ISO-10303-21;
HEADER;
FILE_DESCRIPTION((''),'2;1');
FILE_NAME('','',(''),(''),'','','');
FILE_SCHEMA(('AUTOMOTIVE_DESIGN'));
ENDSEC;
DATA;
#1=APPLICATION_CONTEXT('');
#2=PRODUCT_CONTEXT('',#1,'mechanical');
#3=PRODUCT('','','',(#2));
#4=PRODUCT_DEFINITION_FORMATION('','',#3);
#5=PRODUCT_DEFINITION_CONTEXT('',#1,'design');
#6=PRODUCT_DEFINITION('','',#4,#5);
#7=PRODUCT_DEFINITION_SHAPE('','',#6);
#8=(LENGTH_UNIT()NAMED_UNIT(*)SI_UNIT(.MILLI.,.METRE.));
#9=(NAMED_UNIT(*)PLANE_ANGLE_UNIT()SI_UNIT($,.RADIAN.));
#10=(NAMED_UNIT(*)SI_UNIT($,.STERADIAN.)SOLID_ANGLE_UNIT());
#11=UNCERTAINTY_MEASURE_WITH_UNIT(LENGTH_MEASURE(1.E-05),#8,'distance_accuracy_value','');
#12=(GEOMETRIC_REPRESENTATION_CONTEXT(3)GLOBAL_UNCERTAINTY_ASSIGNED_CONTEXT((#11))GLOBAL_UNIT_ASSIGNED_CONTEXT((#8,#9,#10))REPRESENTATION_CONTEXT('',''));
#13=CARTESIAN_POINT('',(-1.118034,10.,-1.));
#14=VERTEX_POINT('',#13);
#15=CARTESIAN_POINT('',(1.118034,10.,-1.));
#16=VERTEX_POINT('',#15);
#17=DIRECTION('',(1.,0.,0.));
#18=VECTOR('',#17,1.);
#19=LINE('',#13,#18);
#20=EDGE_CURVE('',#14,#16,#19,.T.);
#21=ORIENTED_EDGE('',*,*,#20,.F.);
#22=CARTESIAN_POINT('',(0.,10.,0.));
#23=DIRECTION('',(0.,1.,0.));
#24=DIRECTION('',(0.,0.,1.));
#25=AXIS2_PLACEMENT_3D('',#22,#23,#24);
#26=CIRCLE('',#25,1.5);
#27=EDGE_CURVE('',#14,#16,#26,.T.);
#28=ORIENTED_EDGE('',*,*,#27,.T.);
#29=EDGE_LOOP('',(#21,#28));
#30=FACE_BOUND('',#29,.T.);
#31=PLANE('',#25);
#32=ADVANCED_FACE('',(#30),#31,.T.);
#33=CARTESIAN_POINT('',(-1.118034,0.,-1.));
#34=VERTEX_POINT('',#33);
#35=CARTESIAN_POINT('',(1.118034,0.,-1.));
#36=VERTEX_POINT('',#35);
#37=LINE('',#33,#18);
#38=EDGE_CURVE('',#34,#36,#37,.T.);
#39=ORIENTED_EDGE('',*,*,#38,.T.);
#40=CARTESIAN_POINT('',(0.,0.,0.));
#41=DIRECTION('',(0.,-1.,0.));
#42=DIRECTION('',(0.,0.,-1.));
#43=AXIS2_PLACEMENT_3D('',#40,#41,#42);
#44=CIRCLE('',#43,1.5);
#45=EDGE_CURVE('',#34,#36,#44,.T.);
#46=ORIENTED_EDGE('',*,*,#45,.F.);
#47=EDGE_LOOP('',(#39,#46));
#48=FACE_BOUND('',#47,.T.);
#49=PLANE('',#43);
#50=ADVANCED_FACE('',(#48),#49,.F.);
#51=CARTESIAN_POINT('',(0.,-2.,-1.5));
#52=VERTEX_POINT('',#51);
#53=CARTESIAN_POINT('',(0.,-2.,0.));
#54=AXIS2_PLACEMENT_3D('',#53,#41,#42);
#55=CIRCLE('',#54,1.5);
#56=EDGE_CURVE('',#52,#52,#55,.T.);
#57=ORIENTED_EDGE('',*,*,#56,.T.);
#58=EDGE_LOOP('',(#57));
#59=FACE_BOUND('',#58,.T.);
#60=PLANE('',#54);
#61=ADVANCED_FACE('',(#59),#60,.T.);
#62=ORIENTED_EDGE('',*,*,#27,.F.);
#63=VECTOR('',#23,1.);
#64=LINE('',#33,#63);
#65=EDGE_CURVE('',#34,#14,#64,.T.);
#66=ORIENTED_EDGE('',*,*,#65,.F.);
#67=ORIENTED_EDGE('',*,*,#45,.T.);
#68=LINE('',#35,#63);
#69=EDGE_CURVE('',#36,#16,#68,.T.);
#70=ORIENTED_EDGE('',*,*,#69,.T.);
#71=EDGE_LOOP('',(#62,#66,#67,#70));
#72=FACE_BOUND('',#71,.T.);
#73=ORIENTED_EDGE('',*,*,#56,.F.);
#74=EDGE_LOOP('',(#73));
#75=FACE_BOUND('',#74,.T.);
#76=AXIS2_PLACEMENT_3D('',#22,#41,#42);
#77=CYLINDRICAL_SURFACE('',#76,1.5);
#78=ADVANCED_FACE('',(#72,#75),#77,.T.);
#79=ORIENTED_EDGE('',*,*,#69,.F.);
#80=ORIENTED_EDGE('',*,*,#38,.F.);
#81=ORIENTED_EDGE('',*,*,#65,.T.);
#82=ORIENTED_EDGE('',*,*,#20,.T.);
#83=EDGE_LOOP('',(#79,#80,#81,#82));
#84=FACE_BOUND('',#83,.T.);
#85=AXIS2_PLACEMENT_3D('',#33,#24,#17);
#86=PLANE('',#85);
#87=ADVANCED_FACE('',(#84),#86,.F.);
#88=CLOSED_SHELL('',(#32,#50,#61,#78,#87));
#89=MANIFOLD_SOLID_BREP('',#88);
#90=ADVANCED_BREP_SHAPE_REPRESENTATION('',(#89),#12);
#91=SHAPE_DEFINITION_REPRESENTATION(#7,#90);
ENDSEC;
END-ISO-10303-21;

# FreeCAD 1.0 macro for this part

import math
import FreeCAD as App
import Part
import Sketcher

V = App.Vector
Q = App.Units.Quantity

doc = App.newDocument("Part")
params = doc.addObject("Spreadsheet::Sheet", "Params")
for row, (alias, value) in enumerate([
    ("sketch1_diameter", "3 mm"),
    ("pad1_length", "10 mm"),
    ("sketch2_radius", "1.5 mm"),
    ("pocket1_length", "10 mm"),
    ("sketch3_diameter", "3 mm"),
    ("pad2_length", "2 mm"),
], start=1):
    params.set(f"A{row}", alias)
    params.set(f"B{row}", "=" + value)
    params.setAlias(f"B{row}", alias)

body = doc.addObject("PartDesign::Body", "Body")

# Sketch on XZ plane
sketch1 = body.newObject("Sketcher::SketchObject", "Sketch")
sketch1.AttachmentSupport = (doc.getObject("XZ_Plane"), [""])
sketch1.MapMode = "FlatFace"
sketch1.addGeometry(Part.Circle(V(0, 0, 0), V(0, 0, 1), 1.5), False)
sketch1.addConstraint([
    Sketcher.Constraint("Coincident", 0, 3, -1, 1),
    Sketcher.Constraint("Diameter", 0, Q("3 mm")),
])
sketch1.setExpression("Constraints[1]", "Params.sketch1_diameter")
pad1 = body.newObject("PartDesign::Pad", "Pad")
pad1.Profile = sketch1
pad1.setExpression("Length", "Params.pad1_length")
pad1.Reversed = True

# Sketch on XZ plane
sketch2 = body.newObject("Sketcher::SketchObject", "Sketch001")
sketch2.AttachmentSupport = (doc.getObject("XZ_Plane"), [""])
sketch2.MapMode = "FlatFace"
sketch2.AttachmentOffset = App.Placement(V(0, 0, -10), App.Rotation())
sketch2.addGeometry([
    Part.LineSegment(V(-1.1, -1, 0), V(1.1, -1, 0)),
    Part.ArcOfCircle(Part.Circle(V(0, 0, 0), V(0, 0, 1), 1.5), math.radians(-138), math.radians(-42)),
], False)
sketch2.addConstraint([
    Sketcher.Constraint("Coincident", 0, 1, 1, 1),
    Sketcher.Constraint("Coincident", 1, 2, 0, 2),
    Sketcher.Constraint("Horizontal", 0),
    Sketcher.Constraint("Coincident", 1, 3, -1, 1),
    Sketcher.Constraint("Radius", 1, Q("1.5 mm")),
    Sketcher.Constraint("DistanceY", 0, 1, -1, 1, Q("1 mm")),
])
sketch2.setExpression("Constraints[4]", "Params.sketch2_radius")
pocket1 = body.newObject("PartDesign::Pocket", "Pocket")
pocket1.Profile = sketch2
pocket1.setExpression("Length", "Params.pocket1_length")
pocket1.Reversed = True

# Sketch on XZ plane
sketch3 = body.newObject("Sketcher::SketchObject", "Sketch002")
sketch3.AttachmentSupport = (doc.getObject("XZ_Plane"), [""])
sketch3.MapMode = "FlatFace"
sketch3.addGeometry(Part.Circle(V(0, 0, 0), V(0, 0, 1), 1.5), False)
sketch3.addConstraint([
    Sketcher.Constraint("Coincident", 0, 3, -1, 1),
    Sketcher.Constraint("Diameter", 0, Q("3 mm")),
])
sketch3.setExpression("Constraints[1]", "Params.sketch3_diameter")
pad2 = body.newObject("PartDesign::Pad", "Pad001")
pad2.Profile = sketch3
pad2.setExpression("Length", "Params.pad2_length")

doc.recompute()
